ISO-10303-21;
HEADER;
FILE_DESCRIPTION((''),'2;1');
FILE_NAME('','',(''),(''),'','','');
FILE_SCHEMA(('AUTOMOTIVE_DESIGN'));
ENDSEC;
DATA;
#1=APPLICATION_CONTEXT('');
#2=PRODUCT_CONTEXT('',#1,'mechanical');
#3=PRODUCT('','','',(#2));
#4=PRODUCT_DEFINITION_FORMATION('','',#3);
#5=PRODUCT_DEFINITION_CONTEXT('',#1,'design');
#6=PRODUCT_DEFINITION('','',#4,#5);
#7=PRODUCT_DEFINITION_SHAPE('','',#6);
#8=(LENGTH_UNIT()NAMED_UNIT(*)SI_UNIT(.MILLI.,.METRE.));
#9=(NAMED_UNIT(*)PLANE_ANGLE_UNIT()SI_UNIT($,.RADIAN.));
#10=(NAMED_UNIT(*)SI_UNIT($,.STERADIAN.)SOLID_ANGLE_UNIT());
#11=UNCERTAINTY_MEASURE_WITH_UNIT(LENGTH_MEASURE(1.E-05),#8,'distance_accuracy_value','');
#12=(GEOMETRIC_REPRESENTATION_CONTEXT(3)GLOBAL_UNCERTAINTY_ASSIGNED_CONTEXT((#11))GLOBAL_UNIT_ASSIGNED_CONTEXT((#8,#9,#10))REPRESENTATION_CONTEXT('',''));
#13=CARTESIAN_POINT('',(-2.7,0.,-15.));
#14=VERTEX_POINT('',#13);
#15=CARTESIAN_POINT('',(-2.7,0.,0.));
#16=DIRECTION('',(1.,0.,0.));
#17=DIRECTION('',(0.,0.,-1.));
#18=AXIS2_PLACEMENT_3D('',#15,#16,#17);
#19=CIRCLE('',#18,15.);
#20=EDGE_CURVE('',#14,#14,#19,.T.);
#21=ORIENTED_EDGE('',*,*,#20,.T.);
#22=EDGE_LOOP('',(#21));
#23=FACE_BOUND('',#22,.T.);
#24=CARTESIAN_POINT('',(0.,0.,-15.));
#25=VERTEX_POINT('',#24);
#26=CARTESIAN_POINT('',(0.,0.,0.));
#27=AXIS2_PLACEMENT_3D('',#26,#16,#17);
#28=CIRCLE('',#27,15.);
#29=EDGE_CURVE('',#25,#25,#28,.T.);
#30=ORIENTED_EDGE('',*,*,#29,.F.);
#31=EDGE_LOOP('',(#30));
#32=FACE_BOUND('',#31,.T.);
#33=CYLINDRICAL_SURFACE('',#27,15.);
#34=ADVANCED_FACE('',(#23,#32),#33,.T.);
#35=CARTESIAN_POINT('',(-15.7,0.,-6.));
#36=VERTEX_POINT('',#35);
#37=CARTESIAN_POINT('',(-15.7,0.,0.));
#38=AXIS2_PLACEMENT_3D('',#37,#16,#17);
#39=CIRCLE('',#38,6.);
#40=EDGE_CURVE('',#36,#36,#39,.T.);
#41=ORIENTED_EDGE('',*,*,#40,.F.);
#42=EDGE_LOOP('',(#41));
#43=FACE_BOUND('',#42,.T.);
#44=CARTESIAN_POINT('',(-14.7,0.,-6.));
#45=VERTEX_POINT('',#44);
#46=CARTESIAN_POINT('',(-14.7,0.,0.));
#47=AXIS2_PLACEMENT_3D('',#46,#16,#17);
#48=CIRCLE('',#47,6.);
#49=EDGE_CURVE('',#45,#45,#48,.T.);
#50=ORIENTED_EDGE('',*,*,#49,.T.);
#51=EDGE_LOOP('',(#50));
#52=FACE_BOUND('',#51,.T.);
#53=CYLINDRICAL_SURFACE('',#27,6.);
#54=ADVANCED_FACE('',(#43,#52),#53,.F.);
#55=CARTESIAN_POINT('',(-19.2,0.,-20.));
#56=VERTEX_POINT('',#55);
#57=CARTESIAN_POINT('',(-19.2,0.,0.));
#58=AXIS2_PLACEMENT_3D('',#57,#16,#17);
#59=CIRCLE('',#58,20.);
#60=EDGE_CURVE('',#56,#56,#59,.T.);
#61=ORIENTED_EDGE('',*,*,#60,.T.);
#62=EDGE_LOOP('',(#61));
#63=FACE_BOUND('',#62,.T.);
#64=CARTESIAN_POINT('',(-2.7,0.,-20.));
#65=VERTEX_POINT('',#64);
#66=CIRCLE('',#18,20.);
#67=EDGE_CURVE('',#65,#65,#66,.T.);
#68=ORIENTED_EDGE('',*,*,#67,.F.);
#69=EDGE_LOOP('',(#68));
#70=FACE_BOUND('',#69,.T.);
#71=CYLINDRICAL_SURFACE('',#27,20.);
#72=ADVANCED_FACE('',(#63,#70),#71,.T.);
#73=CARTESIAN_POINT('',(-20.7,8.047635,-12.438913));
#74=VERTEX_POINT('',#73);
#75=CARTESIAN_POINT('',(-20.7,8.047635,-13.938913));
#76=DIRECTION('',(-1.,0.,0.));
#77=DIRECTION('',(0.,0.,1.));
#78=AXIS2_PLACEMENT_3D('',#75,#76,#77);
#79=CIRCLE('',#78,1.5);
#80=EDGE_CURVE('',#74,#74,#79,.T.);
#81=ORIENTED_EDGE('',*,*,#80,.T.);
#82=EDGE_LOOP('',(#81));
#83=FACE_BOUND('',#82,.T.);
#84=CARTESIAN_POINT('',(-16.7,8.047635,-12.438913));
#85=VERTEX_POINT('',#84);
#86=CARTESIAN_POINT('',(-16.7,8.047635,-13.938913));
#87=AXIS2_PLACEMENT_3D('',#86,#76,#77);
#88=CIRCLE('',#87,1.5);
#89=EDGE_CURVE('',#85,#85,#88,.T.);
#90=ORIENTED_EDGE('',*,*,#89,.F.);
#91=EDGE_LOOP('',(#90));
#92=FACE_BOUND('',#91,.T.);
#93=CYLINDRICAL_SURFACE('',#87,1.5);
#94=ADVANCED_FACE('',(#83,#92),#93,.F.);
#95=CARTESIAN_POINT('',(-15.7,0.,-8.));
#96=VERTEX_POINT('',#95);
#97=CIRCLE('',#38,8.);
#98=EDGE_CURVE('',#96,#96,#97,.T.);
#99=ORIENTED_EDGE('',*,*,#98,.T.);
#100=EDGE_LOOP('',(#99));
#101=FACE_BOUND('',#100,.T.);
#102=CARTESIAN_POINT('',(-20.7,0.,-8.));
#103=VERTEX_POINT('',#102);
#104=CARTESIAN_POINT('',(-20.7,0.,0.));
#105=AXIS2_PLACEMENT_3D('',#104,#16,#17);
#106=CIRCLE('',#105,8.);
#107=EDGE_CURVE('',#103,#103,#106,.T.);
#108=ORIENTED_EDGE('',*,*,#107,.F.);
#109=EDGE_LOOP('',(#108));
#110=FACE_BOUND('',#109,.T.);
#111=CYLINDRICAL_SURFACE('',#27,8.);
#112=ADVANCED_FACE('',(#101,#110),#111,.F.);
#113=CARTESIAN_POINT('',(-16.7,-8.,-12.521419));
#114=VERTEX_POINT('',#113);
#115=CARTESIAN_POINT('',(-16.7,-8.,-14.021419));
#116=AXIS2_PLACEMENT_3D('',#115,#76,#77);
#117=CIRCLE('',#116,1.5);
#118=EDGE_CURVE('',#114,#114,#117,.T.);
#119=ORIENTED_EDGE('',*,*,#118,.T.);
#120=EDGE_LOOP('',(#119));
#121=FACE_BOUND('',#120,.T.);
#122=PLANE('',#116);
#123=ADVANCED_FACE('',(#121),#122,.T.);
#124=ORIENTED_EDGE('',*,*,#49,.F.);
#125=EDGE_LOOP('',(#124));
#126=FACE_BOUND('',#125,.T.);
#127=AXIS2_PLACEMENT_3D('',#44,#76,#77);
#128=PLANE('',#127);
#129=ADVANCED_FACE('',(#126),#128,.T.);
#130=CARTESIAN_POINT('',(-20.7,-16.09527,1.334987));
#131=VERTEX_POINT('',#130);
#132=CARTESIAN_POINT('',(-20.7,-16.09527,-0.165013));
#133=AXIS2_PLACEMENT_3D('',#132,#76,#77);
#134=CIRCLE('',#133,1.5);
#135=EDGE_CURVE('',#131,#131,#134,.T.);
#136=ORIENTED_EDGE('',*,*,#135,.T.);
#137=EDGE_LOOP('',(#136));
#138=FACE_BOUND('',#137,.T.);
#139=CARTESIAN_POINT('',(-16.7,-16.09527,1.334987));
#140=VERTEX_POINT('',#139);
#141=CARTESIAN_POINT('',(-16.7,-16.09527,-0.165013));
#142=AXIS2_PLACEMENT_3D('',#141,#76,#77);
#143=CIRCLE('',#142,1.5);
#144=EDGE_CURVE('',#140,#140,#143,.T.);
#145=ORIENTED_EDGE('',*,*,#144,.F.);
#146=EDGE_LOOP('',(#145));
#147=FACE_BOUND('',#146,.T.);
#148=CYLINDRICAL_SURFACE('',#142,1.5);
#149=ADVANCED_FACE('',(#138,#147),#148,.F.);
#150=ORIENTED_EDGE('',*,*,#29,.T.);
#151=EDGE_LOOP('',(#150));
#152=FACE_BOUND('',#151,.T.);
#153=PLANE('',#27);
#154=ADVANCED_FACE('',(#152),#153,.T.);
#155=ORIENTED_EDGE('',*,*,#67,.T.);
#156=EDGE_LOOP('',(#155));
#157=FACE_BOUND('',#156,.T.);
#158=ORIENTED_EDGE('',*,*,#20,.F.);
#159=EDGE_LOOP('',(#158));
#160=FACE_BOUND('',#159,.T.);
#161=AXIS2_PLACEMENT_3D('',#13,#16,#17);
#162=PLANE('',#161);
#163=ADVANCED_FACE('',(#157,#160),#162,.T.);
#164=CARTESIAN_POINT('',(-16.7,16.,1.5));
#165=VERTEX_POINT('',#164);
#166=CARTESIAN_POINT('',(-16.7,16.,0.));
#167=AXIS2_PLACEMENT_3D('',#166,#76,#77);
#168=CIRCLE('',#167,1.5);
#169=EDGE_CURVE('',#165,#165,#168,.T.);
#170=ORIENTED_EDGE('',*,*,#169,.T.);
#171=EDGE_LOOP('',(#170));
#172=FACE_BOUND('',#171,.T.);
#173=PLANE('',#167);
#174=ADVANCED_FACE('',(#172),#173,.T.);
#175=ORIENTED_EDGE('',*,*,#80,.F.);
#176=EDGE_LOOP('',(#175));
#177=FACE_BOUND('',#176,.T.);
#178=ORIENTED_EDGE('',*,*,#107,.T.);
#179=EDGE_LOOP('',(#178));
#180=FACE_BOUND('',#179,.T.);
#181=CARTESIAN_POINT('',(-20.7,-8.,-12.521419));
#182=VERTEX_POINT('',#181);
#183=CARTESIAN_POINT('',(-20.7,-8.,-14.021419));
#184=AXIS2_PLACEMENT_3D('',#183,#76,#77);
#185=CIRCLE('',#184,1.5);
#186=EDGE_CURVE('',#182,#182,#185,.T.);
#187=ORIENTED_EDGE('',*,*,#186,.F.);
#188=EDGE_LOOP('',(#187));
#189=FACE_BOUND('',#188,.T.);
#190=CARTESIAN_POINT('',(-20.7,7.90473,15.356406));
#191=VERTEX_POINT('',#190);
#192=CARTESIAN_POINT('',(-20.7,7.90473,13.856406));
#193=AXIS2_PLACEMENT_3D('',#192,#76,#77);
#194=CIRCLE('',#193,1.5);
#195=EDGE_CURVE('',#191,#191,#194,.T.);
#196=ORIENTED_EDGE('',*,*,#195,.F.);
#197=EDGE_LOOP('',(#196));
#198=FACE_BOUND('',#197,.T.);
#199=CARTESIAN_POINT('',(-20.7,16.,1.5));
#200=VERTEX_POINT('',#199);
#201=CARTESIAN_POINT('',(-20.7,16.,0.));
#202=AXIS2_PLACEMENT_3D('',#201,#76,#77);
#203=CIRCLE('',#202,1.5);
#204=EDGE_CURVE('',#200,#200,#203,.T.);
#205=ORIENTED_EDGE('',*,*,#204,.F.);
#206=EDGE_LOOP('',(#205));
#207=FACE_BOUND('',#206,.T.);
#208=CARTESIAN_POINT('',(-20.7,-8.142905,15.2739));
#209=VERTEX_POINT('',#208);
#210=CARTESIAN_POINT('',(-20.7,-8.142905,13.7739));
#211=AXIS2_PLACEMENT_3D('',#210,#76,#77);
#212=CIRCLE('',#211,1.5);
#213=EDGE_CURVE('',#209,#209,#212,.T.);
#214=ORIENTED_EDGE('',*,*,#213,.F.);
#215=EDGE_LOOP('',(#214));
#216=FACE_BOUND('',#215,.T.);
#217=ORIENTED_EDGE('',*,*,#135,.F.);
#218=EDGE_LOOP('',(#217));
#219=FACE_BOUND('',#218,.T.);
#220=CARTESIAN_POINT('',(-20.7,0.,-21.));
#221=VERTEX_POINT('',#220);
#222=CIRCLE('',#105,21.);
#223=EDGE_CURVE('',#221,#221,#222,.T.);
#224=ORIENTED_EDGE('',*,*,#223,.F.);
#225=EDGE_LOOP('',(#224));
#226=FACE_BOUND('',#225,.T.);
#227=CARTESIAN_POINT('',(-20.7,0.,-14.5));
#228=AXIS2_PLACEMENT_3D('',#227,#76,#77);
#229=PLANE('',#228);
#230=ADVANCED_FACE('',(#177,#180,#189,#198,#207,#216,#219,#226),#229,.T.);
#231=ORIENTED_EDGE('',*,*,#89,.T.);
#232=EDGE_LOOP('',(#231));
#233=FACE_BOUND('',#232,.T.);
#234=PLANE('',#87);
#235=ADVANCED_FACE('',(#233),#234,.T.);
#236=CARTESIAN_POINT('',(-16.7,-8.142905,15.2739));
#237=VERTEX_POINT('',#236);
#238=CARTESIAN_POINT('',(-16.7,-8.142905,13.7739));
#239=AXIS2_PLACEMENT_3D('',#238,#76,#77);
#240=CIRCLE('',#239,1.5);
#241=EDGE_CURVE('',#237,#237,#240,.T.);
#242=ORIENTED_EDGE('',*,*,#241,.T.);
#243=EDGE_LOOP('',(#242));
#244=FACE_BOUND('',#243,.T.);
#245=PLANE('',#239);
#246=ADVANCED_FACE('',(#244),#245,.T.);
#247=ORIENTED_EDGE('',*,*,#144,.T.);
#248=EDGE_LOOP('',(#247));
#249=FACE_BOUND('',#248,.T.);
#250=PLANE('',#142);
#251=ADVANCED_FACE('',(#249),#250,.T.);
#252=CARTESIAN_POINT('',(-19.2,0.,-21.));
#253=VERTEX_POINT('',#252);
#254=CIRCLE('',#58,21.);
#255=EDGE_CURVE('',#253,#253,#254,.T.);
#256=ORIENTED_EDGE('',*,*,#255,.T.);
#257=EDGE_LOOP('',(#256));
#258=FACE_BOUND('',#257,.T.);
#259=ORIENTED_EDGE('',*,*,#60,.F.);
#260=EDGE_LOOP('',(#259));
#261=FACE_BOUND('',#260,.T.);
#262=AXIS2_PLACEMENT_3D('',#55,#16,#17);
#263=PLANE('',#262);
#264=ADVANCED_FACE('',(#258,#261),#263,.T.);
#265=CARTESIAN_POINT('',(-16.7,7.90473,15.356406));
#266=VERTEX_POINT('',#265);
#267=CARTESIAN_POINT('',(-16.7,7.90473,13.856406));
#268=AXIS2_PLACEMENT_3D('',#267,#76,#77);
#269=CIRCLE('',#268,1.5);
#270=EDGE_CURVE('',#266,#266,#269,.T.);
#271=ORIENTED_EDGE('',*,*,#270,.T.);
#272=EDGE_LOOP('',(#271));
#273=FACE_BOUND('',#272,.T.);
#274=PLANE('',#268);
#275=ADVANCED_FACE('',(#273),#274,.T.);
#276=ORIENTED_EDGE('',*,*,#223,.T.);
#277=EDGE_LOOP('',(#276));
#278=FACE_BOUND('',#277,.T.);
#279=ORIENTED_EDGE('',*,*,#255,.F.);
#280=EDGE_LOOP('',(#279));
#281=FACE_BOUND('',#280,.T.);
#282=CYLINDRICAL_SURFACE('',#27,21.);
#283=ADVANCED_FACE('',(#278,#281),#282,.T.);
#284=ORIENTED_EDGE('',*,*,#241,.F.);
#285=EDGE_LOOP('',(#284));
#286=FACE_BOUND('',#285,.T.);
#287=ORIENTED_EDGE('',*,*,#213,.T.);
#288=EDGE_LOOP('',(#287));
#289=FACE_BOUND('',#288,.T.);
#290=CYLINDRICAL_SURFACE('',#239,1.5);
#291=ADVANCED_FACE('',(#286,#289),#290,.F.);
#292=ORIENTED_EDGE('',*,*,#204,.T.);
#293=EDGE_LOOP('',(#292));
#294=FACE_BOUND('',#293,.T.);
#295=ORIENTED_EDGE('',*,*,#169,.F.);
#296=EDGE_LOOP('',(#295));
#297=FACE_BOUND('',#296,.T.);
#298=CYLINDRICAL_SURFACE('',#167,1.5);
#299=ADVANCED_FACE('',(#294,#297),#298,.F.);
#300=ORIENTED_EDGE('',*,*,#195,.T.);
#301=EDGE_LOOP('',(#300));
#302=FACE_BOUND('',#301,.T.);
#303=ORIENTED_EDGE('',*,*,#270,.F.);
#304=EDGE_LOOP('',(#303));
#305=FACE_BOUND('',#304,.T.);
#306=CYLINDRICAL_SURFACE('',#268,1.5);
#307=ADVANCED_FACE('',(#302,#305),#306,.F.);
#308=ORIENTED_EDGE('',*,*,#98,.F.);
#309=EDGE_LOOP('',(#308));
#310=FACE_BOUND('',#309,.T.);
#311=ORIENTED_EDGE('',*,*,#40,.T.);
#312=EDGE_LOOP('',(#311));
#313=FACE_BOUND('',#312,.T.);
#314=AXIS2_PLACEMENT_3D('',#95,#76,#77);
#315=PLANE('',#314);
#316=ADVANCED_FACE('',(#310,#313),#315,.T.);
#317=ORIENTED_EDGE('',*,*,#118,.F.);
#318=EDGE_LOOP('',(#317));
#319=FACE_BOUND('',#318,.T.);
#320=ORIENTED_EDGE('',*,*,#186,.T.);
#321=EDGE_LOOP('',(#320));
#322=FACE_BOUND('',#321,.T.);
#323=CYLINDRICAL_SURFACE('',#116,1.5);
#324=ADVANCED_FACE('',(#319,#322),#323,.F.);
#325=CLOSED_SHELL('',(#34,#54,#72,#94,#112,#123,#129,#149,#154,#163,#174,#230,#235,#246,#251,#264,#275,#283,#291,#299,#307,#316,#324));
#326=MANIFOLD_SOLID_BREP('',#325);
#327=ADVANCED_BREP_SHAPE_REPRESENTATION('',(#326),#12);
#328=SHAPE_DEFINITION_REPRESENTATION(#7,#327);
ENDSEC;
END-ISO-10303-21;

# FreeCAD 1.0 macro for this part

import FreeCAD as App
import Part
import Sketcher
from FreeCAD import Vector

doc = App.newDocument("Part")
body = doc.addObject("PartDesign::Body", "Body")

sketch1 = doc.addObject("Sketcher::SketchObject", "Sketch")
body.addObject(sketch1)
sketch1.AttachmentSupport = (doc.XZ_Plane, [""])
sketch1.MapMode = "FlatFace"
sketch1.addGeometry(Part.LineSegment(Vector(0, 0, 0), Vector(0, -15, 0)), False)
sketch1.addGeometry(Part.LineSegment(Vector(0, -15, 0), Vector(-2.7, -15, 0)), False)
sketch1.addGeometry(Part.LineSegment(Vector(-2.7, -15, 0), Vector(-2.7, -20, 0)), False)
sketch1.addGeometry(Part.LineSegment(Vector(-2.7, -20, 0), Vector(-19.2, -20, 0)), False)
sketch1.addGeometry(Part.LineSegment(Vector(-19.2, -20, 0), Vector(-19.2, -21, 0)), False)
sketch1.addGeometry(Part.LineSegment(Vector(-19.2, -21, 0), Vector(-20.7, -21, 0)), False)
sketch1.addGeometry(Part.LineSegment(Vector(-20.7, -21, 0), Vector(-20.7, -8, 0)), False)
sketch1.addGeometry(Part.LineSegment(Vector(-20.7, -8, 0), Vector(-15.7, -8, 0)), False)
sketch1.addGeometry(Part.LineSegment(Vector(-15.7, -8, 0), Vector(-15.7, -6, 0)), False)
sketch1.addGeometry(Part.LineSegment(Vector(-15.7, -6, 0), Vector(-14.7, -6, 0)), False)
sketch1.addGeometry(Part.LineSegment(Vector(-14.7, -6, 0), Vector(-14.7, 0, 0)), False)
sketch1.addGeometry(Part.LineSegment(Vector(-14.7, 0, 0), Vector(0, 0, 0)), False)
sketch1.addConstraint(Sketcher.Constraint("Coincident", 0, 2, 1, 1))
sketch1.addConstraint(Sketcher.Constraint("Coincident", 1, 2, 2, 1))
sketch1.addConstraint(Sketcher.Constraint("Coincident", 2, 2, 3, 1))
sketch1.addConstraint(Sketcher.Constraint("Coincident", 3, 2, 4, 1))
sketch1.addConstraint(Sketcher.Constraint("Coincident", 4, 2, 5, 1))
sketch1.addConstraint(Sketcher.Constraint("Coincident", 5, 2, 6, 1))
sketch1.addConstraint(Sketcher.Constraint("Coincident", 6, 2, 7, 1))
sketch1.addConstraint(Sketcher.Constraint("Coincident", 7, 2, 8, 1))
sketch1.addConstraint(Sketcher.Constraint("Coincident", 8, 2, 9, 1))
sketch1.addConstraint(Sketcher.Constraint("Coincident", 9, 2, 10, 1))
sketch1.addConstraint(Sketcher.Constraint("Coincident", 10, 2, 11, 1))
sketch1.addConstraint(Sketcher.Constraint("Coincident", 11, 2, 0, 1))
sketch1.addConstraint(Sketcher.Constraint("Vertical", 0))
sketch1.addConstraint(Sketcher.Constraint("Horizontal", 1))
sketch1.addConstraint(Sketcher.Constraint("Vertical", 2))
sketch1.addConstraint(Sketcher.Constraint("Horizontal", 3))
sketch1.addConstraint(Sketcher.Constraint("Vertical", 4))
sketch1.addConstraint(Sketcher.Constraint("Horizontal", 5))
sketch1.addConstraint(Sketcher.Constraint("Vertical", 6))
sketch1.addConstraint(Sketcher.Constraint("Horizontal", 7))
sketch1.addConstraint(Sketcher.Constraint("Vertical", 8))
sketch1.addConstraint(Sketcher.Constraint("Horizontal", 9))
sketch1.addConstraint(Sketcher.Constraint("Vertical", 10))
sketch1.addConstraint(Sketcher.Constraint("Horizontal", 11))
sketch1.addConstraint(Sketcher.Constraint("Coincident", 11, 2, -1, 1))
sketch1.addConstraint(Sketcher.Constraint("Equal", 7, 2))
sketch1.addConstraint(Sketcher.Constraint("Equal", 9, 4))
sketch1.addConstraint(Sketcher.Constraint("DistanceX", 7, 1, 7, 2, 5.0))
sketch1.addConstraint(Sketcher.Constraint("DistanceX", 9, 1, 9, 2, 1.0))
sketch1.addConstraint(Sketcher.Constraint("DistanceY", 0, 2, 0, 1, 15.0))
sketch1.addConstraint(Sketcher.Constraint("DistanceY", 6, 1, 6, 2, 13.0))
sketch1.addConstraint(Sketcher.Constraint("DistanceY", 8, 1, 8, 2, 2.0))
sketch1.addConstraint(Sketcher.Constraint("DistanceX", 1, 2, 1, 1, 2.7))
sketch1.addConstraint(Sketcher.Constraint("DistanceX", 3, 2, 3, 1, 16.5))
sketch1.addConstraint(Sketcher.Constraint("DistanceX", 5, 2, 5, 1, 1.5))
revolution = doc.addObject("PartDesign::Revolution", "Revolution")
body.addObject(revolution)
revolution.Profile = sketch1
revolution.ReferenceAxis = (sketch1, ["H_Axis"])
revolution.Angle = 360

sketch2 = doc.addObject("Sketcher::SketchObject", "Sketch001")
body.addObject(sketch2)
sketch2.AttachmentSupport = (doc.YZ_Plane, [""])
sketch2.MapMode = "FlatFace"
sketch2.AttachmentOffset = App.Placement(Vector(0, 0, -20.7), App.Rotation())
sketch2.addGeometry(Part.Circle(Vector(16, 0, 0), Vector(0, 0, 1), 1.5), False)
sketch2.addGeometry(Part.Circle(Vector(7.90473, 13.856406, 0), Vector(0, 0, 1), 1.5), False)
sketch2.addGeometry(Part.Circle(Vector(-8.142905, 13.7739, 0), Vector(0, 0, 1), 1.5), False)
sketch2.addGeometry(Part.Circle(Vector(-16.09527, -0.165013, 0), Vector(0, 0, 1), 1.5), False)
sketch2.addGeometry(Part.Circle(Vector(-8, -14.021419, 0), Vector(0, 0, 1), 1.5), False)
sketch2.addGeometry(Part.Circle(Vector(8.047635, -13.938913, 0), Vector(0, 0, 1), 1.5), False)
sketch2.addConstraint(Sketcher.Constraint("Equal", 0, 1))
sketch2.addConstraint(Sketcher.Constraint("Equal", 1, 2))
sketch2.addConstraint(Sketcher.Constraint("Equal", 2, 3))
sketch2.addConstraint(Sketcher.Constraint("Equal", 3, 4))
sketch2.addConstraint(Sketcher.Constraint("Equal", 4, 5))
sketch2.addConstraint(Sketcher.Constraint("PointOnObject", 0, 3, -1))
sketch2.addConstraint(Sketcher.Constraint("Diameter", 0, 3.0))
sketch2.addConstraint(Sketcher.Constraint("DistanceX", -1, 1, 0, 3, 16.0))
sketch2.addConstraint(Sketcher.Constraint("DistanceX", 4, 3, -1, 1, 8.0))
sketch2.addConstraint(Sketcher.Constraint("DistanceX", 3, 3, 1, 3, 24.0))
sketch2.addConstraint(Sketcher.Constraint("DistanceY", -1, 1, 2, 3, 13.7739))
sketch2.addConstraint(Sketcher.Constraint("DistanceY", 5, 3, 3, 3, 13.7739))
sketch2.addConstraint(Sketcher.Constraint("DistanceX", -1, 1, 1, 3, 7.90473))
sketch2.addConstraint(Sketcher.Constraint("DistanceY", 4, 3, -1, 1, 14.021419))
sketch2.addConstraint(Sketcher.Constraint("DistanceY", 3, 3, 1, 3, 14.021419))
sketch2.addConstraint(Sketcher.Constraint("DistanceX", 2, 3, 5, 3, 16.19054))
sketch2.addConstraint(Sketcher.Constraint("DistanceY", -1, 1, 1, 3, 13.856406))
sketch2.addConstraint(Sketcher.Constraint("DistanceX", 2, 3, -1, 1, 8.142905))
pocket1 = doc.addObject("PartDesign::Pocket", "Pocket")
body.addObject(pocket1)
pocket1.Profile = sketch2
pocket1.Length = 4
pocket1.Reversed = True

doc.recompute()
